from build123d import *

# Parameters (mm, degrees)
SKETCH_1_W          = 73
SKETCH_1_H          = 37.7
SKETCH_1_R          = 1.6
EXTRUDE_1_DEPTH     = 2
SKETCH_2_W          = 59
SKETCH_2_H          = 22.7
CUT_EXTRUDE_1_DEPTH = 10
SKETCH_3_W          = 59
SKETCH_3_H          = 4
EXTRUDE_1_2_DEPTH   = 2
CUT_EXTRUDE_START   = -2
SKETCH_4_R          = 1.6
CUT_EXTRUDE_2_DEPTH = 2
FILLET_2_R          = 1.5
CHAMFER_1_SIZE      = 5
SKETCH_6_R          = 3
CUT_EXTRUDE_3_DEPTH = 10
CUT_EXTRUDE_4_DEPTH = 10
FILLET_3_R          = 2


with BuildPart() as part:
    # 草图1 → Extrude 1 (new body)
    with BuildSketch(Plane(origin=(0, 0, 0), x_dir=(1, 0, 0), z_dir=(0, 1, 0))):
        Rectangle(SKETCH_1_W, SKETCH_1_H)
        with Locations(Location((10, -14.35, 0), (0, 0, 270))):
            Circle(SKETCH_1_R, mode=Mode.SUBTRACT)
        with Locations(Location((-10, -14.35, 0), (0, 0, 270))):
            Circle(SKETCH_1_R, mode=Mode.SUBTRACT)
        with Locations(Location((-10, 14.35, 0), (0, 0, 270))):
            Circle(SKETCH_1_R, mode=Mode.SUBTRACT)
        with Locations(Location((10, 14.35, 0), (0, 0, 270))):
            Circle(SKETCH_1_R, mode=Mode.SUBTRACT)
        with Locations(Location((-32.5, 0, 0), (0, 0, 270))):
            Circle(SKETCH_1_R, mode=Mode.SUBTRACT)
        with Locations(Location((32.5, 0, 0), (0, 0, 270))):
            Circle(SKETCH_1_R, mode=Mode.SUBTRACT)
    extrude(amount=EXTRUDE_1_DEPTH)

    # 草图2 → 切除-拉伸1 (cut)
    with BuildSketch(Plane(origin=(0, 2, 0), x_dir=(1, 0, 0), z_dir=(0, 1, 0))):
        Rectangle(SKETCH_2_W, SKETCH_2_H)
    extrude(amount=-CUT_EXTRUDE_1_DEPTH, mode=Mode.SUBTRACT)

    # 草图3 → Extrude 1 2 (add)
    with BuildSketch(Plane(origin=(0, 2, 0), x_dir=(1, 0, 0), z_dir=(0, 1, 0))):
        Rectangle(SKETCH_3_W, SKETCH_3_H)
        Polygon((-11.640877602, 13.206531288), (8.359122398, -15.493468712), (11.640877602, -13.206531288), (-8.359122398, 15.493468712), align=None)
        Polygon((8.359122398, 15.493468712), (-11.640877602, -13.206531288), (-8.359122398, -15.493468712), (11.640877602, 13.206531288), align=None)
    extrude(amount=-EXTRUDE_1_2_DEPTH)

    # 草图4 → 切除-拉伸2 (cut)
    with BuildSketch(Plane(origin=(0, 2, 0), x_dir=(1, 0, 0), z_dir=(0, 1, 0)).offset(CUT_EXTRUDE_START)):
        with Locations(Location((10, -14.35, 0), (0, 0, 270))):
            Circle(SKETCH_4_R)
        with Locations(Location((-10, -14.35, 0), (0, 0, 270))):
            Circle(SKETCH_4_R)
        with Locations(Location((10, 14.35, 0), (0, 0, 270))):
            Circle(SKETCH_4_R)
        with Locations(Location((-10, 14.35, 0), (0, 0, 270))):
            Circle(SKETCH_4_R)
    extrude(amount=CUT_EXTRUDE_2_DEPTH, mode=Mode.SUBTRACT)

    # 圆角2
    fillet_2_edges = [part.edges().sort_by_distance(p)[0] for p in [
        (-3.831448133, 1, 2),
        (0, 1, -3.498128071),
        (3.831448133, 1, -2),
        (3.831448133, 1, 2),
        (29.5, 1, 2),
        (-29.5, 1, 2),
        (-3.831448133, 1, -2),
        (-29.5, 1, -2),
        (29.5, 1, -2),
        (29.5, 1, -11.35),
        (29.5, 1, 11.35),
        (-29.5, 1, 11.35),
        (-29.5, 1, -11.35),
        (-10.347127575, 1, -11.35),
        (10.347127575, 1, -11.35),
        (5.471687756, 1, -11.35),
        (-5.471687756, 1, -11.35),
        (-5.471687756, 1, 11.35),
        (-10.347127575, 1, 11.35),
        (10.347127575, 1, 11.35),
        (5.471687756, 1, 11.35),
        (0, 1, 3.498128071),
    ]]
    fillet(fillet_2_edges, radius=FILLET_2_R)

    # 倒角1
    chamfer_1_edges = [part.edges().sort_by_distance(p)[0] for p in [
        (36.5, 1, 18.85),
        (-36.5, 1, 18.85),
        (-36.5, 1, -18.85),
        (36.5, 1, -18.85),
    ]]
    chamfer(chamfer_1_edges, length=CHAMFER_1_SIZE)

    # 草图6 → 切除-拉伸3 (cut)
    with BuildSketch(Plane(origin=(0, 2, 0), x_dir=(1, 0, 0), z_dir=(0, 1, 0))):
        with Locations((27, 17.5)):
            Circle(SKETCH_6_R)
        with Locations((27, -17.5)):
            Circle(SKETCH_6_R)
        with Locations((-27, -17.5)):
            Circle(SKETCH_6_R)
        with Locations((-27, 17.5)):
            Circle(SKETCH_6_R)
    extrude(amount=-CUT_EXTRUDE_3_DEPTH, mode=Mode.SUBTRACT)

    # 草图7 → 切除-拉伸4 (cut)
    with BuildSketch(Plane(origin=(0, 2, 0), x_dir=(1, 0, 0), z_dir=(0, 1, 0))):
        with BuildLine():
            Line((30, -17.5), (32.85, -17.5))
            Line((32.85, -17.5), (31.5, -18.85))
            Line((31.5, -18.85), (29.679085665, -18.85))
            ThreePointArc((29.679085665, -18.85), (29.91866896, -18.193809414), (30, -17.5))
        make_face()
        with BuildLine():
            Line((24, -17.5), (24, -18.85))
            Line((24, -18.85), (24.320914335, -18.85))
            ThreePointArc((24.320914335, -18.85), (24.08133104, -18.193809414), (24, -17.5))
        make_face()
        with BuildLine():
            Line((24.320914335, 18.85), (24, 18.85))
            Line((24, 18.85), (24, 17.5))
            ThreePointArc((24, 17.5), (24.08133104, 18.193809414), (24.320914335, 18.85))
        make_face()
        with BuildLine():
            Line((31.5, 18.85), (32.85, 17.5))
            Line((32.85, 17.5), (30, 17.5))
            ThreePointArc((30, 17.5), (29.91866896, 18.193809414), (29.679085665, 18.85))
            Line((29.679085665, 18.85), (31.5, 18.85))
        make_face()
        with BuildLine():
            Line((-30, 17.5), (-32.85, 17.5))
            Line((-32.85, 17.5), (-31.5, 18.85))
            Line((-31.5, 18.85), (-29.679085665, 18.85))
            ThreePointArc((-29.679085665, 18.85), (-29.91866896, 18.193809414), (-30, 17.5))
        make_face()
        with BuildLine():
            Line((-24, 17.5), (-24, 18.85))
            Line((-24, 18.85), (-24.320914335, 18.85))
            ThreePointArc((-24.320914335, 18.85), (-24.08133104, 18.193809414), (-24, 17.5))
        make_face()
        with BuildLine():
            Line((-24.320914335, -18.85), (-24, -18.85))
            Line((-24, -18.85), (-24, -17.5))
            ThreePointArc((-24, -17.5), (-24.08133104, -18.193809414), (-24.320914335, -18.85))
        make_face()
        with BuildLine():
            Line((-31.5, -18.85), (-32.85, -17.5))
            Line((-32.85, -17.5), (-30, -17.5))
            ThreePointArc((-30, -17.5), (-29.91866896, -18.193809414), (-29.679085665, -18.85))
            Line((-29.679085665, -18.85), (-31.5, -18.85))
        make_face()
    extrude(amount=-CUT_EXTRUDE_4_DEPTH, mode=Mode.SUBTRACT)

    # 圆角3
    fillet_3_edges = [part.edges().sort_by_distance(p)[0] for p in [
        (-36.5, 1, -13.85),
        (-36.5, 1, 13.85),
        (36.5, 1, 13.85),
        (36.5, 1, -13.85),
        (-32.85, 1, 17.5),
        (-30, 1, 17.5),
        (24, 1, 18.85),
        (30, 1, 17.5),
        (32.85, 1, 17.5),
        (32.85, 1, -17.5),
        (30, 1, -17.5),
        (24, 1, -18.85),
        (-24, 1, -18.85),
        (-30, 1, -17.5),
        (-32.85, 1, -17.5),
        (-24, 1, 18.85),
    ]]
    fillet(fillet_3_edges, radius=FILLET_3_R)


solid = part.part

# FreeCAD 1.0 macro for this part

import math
import FreeCAD as App
import Part
import Sketcher

V = App.Vector


def edges_at(feature, points):
    """Names of the edges that pass closest to the given points."""
    edges = feature.Shape.Edges
    near = lambda p: min(range(len(edges)), key=lambda i: edges[i].distToShape(Part.Vertex(*p))[0])
    return sorted({f"Edge{near(p) + 1}" for p in points})


def add_polygon(sketch, points):
    """Adds a closed chain of lines whose ends are joined by coincident constraints."""
    first, n = sketch.GeometryCount, len(points)
    for a, b in zip(points, points[1:] + points[:1]):
        sketch.addGeometry(Part.LineSegment(App.Vector(*a, 0), App.Vector(*b, 0)), False)
    for i in range(n):
        sketch.addConstraint(Sketcher.Constraint("Coincident", first + i, 2, first + (i + 1) % n, 1))

doc = App.newDocument("Part")
body = doc.addObject("PartDesign::Body", "Body")

sketch1 = body.newObject("Sketcher::SketchObject", "Sketch")
sketch1.AttachmentSupport = (doc.getObject("XZ_Plane"), [""])
sketch1.MapMode = "FlatFace"
add_polygon(sketch1, [(-36.5, -18.9), (-36.5, 18.9), (36.5, 18.9), (36.5, -18.9)])
sketch1.addGeometry(Part.Circle(V(-10, 14.3, 0), V(0, 0, 1), 1.6), False)
sketch1.addGeometry(Part.Circle(V(10, 14.3, 0), V(0, 0, 1), 1.6), False)
sketch1.addGeometry(Part.Circle(V(-32.5, 0, 0), V(0, 0, 1), 1.6), False)
sketch1.addGeometry(Part.Circle(V(-10, -14.3, 0), V(0, 0, 1), 1.6), False)
sketch1.addGeometry(Part.Circle(V(32.5, 0, 0), V(0, 0, 1), 1.6), False)
sketch1.addGeometry(Part.Circle(V(10, -14.3, 0), V(0, 0, 1), 1.6), False)
sketch1.addConstraint([
    Sketcher.Constraint("Vertical", 0),
    Sketcher.Constraint("Horizontal", 1),
    Sketcher.Constraint("Vertical", 2),
    Sketcher.Constraint("Horizontal", 3),
    Sketcher.Constraint("Equal", 4, 5),
    Sketcher.Constraint("Equal", 5, 6),
    Sketcher.Constraint("Equal", 6, 7),
    Sketcher.Constraint("Equal", 7, 8),
    Sketcher.Constraint("Equal", 8, 9),
    Sketcher.Constraint("Symmetric", 5, 3, 7, 3, -1, 1),
    Sketcher.Constraint("Symmetric", 6, 3, 8, 3, -1, 1),
    Sketcher.Constraint("Symmetric", 4, 3, 9, 3, -1, 1),
    Sketcher.Constraint("Symmetric", 0, 2, 2, 2, -1, 1),
    Sketcher.Constraint("Symmetric", 4, 3, 5, 3, -2),
    Sketcher.Constraint("PointOnObject", 6, 3, -1),
    Sketcher.Constraint("Diameter", 4, 3.2),
    Sketcher.Constraint("DistanceX", 1, 1, 1, 2, 73.0),
    Sketcher.Constraint("DistanceY", 0, 1, 0, 2, 37.7),
    Sketcher.Constraint("DistanceX", 4, 3, -1, 1, 10.0),
    Sketcher.Constraint("DistanceX", 6, 3, 8, 3, 65.0),
    Sketcher.Constraint("DistanceY", 7, 3, 4, 3, 28.7),
])
pad1 = body.newObject("PartDesign::Pad", "Pad")
pad1.Profile = sketch1
pad1.Length = 2
pad1.Reversed = True

sketch2 = body.newObject("Sketcher::SketchObject", "Sketch001")
sketch2.AttachmentSupport = (doc.getObject("XZ_Plane"), [""])
sketch2.MapMode = "FlatFace"
sketch2.AttachmentOffset = App.Placement(V(0, 0, -2), App.Rotation())
add_polygon(sketch2, [(-30, -11), (-30, 11), (30, 11), (30, -11)])
sketch2.addConstraint([
    Sketcher.Constraint("Vertical", 0),
    Sketcher.Constraint("Horizontal", 1),
    Sketcher.Constraint("Vertical", 2),
    Sketcher.Constraint("Horizontal", 3),
    Sketcher.Constraint("Symmetric", 0, 2, 2, 2, -1, 1),
    Sketcher.Constraint("DistanceX", 1, 1, 1, 2, 59.0),
    Sketcher.Constraint("DistanceY", 0, 1, 0, 2, 22.7),
])
pocket1 = body.newObject("PartDesign::Pocket", "Pocket")
pocket1.Profile = sketch2
pocket1.Length = 10
pocket1.Reversed = True

sketch3 = body.newObject("Sketcher::SketchObject", "Sketch002")
sketch3.AttachmentSupport = (doc.getObject("XZ_Plane"), [""])
sketch3.MapMode = "FlatFace"
sketch3.AttachmentOffset = App.Placement(V(0, 0, -2), App.Rotation())
add_polygon(sketch3, [(-29.5, -2), (-29.5, 2), (-3.8, 2), (-11.6, 13.2), (-8.4, 15.5), (0, 3.5), (8.4, 15.5), (11.6, 13.2), (3.8, 2), (29.5, 2), (29.5, -2), (3.8, -2), (11.6, -13.2), (8.4, -15.5), (0, -3.5), (-8.4, -15.5), (-11.6, -13.2), (-3.8, -2)])
sketch3.addConstraint([
    Sketcher.Constraint("Vertical", 0),
    Sketcher.Constraint("Horizontal", 1),
    Sketcher.Constraint("Horizontal", 8),
    Sketcher.Constraint("Vertical", 9),
    Sketcher.Constraint("Horizontal", 10),
    Sketcher.Constraint("Horizontal", 17),
    Sketcher.Constraint("Symmetric", 0, 2, 9, 2, -1, 1),
    Sketcher.Constraint("Symmetric", 2, 2, 11, 2, -1, 1),
    Sketcher.Constraint("Symmetric", 3, 2, 12, 2, -1, 1),
    Sketcher.Constraint("Symmetric", 4, 2, 13, 2, -1, 1),
    Sketcher.Constraint("Symmetric", 5, 2, 14, 2, -1, 1),
    Sketcher.Constraint("Symmetric", 6, 2, 15, 2, -1, 1),
    Sketcher.Constraint("Symmetric", 7, 2, 16, 2, -1, 1),
    Sketcher.Constraint("Symmetric", 3, 2, 5, 2, -2),
    Sketcher.Constraint("Symmetric", 2, 2, 6, 2, -2),
    Sketcher.Constraint("Symmetric", 1, 2, 7, 2, -2),
    Sketcher.Constraint("PointOnObject", 4, 2, -2),
    Sketcher.Constraint("Perpendicular", 2, 3),
    Sketcher.Constraint("Perpendicular", 3, 4),
    Sketcher.Constraint("Parallel", 4, 11),
    Sketcher.Constraint("DistanceY", 0, 1, 0, 2, 4.0),
    Sketcher.Constraint("Distance", 3, 4.0),
    Sketcher.Constraint("DistanceX", 2, 2, 5, 2, 20.0),
    Sketcher.Constraint("DistanceX", 0, 2, -1, 1, 29.5),
    Sketcher.Constraint("DistanceX", 1, 1, 1, 2, 25.668552),
    Sketcher.Constraint("Distance", 4, 14.62064),
])
pad2 = body.newObject("PartDesign::Pad", "Pad001")
pad2.Profile = sketch3
pad2.Length = 2

sketch4 = body.newObject("Sketcher::SketchObject", "Sketch003")
sketch4.AttachmentSupport = (doc.getObject("XZ_Plane"), [""])
sketch4.MapMode = "FlatFace"
sketch4.addGeometry([
    Part.Circle(V(10, 14.3, 0), V(0, 0, 1), 1.6),
    Part.Circle(V(-10, 14.3, 0), V(0, 0, 1), 1.6),
    Part.Circle(V(10, -14.3, 0), V(0, 0, 1), 1.6),
    Part.Circle(V(-10, -14.3, 0), V(0, 0, 1), 1.6),
], False)
sketch4.addConstraint([
    Sketcher.Constraint("Equal", 0, 1),
    Sketcher.Constraint("Equal", 1, 2),
    Sketcher.Constraint("Equal", 2, 3),
    Sketcher.Constraint("Symmetric", 1, 3, 2, 3, -1, 1),
    Sketcher.Constraint("Symmetric", 0, 3, 3, 3, -1, 1),
    Sketcher.Constraint("Symmetric", 0, 3, 1, 3, -2),
    Sketcher.Constraint("Diameter", 0, 3.2),
    Sketcher.Constraint("DistanceX", -1, 1, 0, 3, 10.0),
    Sketcher.Constraint("DistanceY", 2, 3, 0, 3, 28.7),
])
pocket2 = body.newObject("PartDesign::Pocket", "Pocket001")
pocket2.Profile = sketch4
pocket2.Length = 2
doc.recompute()

fillet = body.newObject("PartDesign::Fillet", "Fillet")
fillet.Base = (pocket2, edges_at(pocket2, [
    (-3.831, 1, 2),
    (0, 1, -3.498),
    (3.831, 1, -2),
    (3.831, 1, 2),
    (29.5, 1, 2),
    (-29.5, 1, 2),
    (-3.831, 1, -2),
    (-29.5, 1, -2),
    (29.5, 1, -2),
    (29.5, 1, -11.35),
    (29.5, 1, 11.35),
    (-29.5, 1, 11.35),
    (-29.5, 1, -11.35),
    (-10.347, 1, -11.35),
    (10.347, 1, -11.35),
    (5.472, 1, -11.35),
    (-5.472, 1, -11.35),
    (-5.472, 1, 11.35),
    (-10.347, 1, 11.35),
    (10.347, 1, 11.35),
    (5.472, 1, 11.35),
    (0, 1, 3.498),
]))
fillet.Radius = 1.5
doc.recompute()

chamfer = body.newObject("PartDesign::Chamfer", "Chamfer")
chamfer.Base = (fillet, edges_at(fillet, [
    (36.5, 1, 18.85),
    (-36.5, 1, 18.85),
    (-36.5, 1, -18.85),
    (36.5, 1, -18.85),
]))
chamfer.Size = 5

sketch5 = body.newObject("Sketcher::SketchObject", "Sketch004")
sketch5.AttachmentSupport = (doc.getObject("XZ_Plane"), [""])
sketch5.MapMode = "FlatFace"
sketch5.AttachmentOffset = App.Placement(V(0, 0, -2), App.Rotation())
sketch5.addGeometry([
    Part.Circle(V(27, -17.5, 0), V(0, 0, 1), 3),
    Part.Circle(V(27, 17.5, 0), V(0, 0, 1), 3),
    Part.Circle(V(-27, 17.5, 0), V(0, 0, 1), 3),
    Part.Circle(V(-27, -17.5, 0), V(0, 0, 1), 3),
], False)
sketch5.addConstraint([
    Sketcher.Constraint("Equal", 0, 1),
    Sketcher.Constraint("Equal", 1, 2),
    Sketcher.Constraint("Equal", 2, 3),
    Sketcher.Constraint("Symmetric", 0, 3, 2, 3, -1, 1),
    Sketcher.Constraint("Symmetric", 1, 3, 3, 3, -1, 1),
    Sketcher.Constraint("Symmetric", 1, 3, 2, 3, -2),
    Sketcher.Constraint("Diameter", 0, 6.0),
    Sketcher.Constraint("DistanceX", -1, 1, 0, 3, 27.0),
    Sketcher.Constraint("DistanceY", 0, 3, 1, 3, 35.0),
])
pocket3 = body.newObject("PartDesign::Pocket", "Pocket002")
pocket3.Profile = sketch5
pocket3.Length = 10
pocket3.Reversed = True

sketch6 = body.newObject("Sketcher::SketchObject", "Sketch005")
sketch6.AttachmentSupport = (doc.getObject("XZ_Plane"), [""])
sketch6.MapMode = "FlatFace"
sketch6.AttachmentOffset = App.Placement(V(0, 0, -2), App.Rotation())
sketch6.addGeometry([
    Part.LineSegment(V(32.85, 17.5, 0), V(30, 17.5, 0)),
    Part.ArcOfCircle(Part.Circle(V(27, 17.5, 0), V(0, 0, 1), 3), math.radians(0), math.radians(27)),
    Part.LineSegment(V(29.68, 18.85, 0), V(31.5, 18.85, 0)),
    Part.LineSegment(V(31.5, 18.85, 0), V(32.85, 17.5, 0)),
    Part.LineSegment(V(24, 17.5, 0), V(24, 18.85, 0)),
    Part.LineSegment(V(24, 18.85, 0), V(24.32, 18.85, 0)),
    Part.ArcOfCircle(Part.Circle(V(27, 17.5, 0), V(0, 0, 1), 3), math.radians(153), math.radians(180)),
    Part.LineSegment(V(24.32, -18.85, 0), V(24, -18.85, 0)),
    Part.LineSegment(V(24, -18.85, 0), V(24, -17.5, 0)),
    Part.ArcOfCircle(Part.Circle(V(27, -17.5, 0), V(0, 0, 1), 3), math.radians(180), math.radians(207)),
    Part.LineSegment(V(32.85, -17.5, 0), V(31.5, -18.85, 0)),
    Part.LineSegment(V(31.5, -18.85, 0), V(29.68, -18.85, 0)),
    Part.ArcOfCircle(Part.Circle(V(27, -17.5, 0), V(0, 0, 1), 3), math.radians(-27), math.radians(0)),
    Part.LineSegment(V(30, -17.5, 0), V(32.85, -17.5, 0)),
    Part.LineSegment(V(-32.85, -17.5, 0), V(-30, -17.5, 0)),
    Part.ArcOfCircle(Part.Circle(V(-27, -17.5, 0), V(0, 0, 1), 3), math.radians(180), math.radians(207)),
    Part.LineSegment(V(-29.68, -18.85, 0), V(-31.5, -18.85, 0)),
    Part.LineSegment(V(-31.5, -18.85, 0), V(-32.85, -17.5, 0)),
    Part.LineSegment(V(-24, -17.5, 0), V(-24, -18.85, 0)),
    Part.LineSegment(V(-24, -18.85, 0), V(-24.32, -18.85, 0)),
    Part.ArcOfCircle(Part.Circle(V(-27, -17.5, 0), V(0, 0, 1), 3), math.radians(-27), math.radians(0)),
    Part.LineSegment(V(-24.32, 18.85, 0), V(-24, 18.85, 0)),
    Part.LineSegment(V(-24, 18.85, 0), V(-24, 17.5, 0)),
    Part.ArcOfCircle(Part.Circle(V(-27, 17.5, 0), V(0, 0, 1), 3), math.radians(0), math.radians(27)),
    Part.LineSegment(V(-32.85, 17.5, 0), V(-31.5, 18.85, 0)),
    Part.LineSegment(V(-31.5, 18.85, 0), V(-29.68, 18.85, 0)),
    Part.ArcOfCircle(Part.Circle(V(-27, 17.5, 0), V(0, 0, 1), 3), math.radians(153), math.radians(180)),
    Part.LineSegment(V(-30, 17.5, 0), V(-32.85, 17.5, 0)),
], False)
sketch6.addConstraint([
    Sketcher.Constraint("Coincident", 0, 2, 1, 1),
    Sketcher.Constraint("Coincident", 1, 2, 2, 1),
    Sketcher.Constraint("Coincident", 2, 2, 3, 1),
    Sketcher.Constraint("Coincident", 3, 2, 0, 1),
    Sketcher.Constraint("Coincident", 4, 2, 5, 1),
    Sketcher.Constraint("Coincident", 5, 2, 6, 1),
    Sketcher.Constraint("Tangent", 6, 2, 4, 1),
    Sketcher.Constraint("Coincident", 7, 2, 8, 1),
    Sketcher.Constraint("Tangent", 8, 2, 9, 1),
    Sketcher.Constraint("Coincident", 9, 2, 7, 1),
    Sketcher.Constraint("Coincident", 10, 2, 11, 1),
    Sketcher.Constraint("Coincident", 11, 2, 12, 1),
    Sketcher.Constraint("Coincident", 12, 2, 13, 1),
    Sketcher.Constraint("Coincident", 13, 2, 10, 1),
    Sketcher.Constraint("Coincident", 14, 2, 15, 1),
    Sketcher.Constraint("Coincident", 15, 2, 16, 1),
    Sketcher.Constraint("Coincident", 16, 2, 17, 1),
    Sketcher.Constraint("Coincident", 17, 2, 14, 1),
    Sketcher.Constraint("Coincident", 18, 2, 19, 1),
    Sketcher.Constraint("Coincident", 19, 2, 20, 1),
    Sketcher.Constraint("Tangent", 20, 2, 18, 1),
    Sketcher.Constraint("Coincident", 21, 2, 22, 1),
    Sketcher.Constraint("Tangent", 22, 2, 23, 1),
    Sketcher.Constraint("Coincident", 23, 2, 21, 1),
    Sketcher.Constraint("Coincident", 24, 2, 25, 1),
    Sketcher.Constraint("Coincident", 25, 2, 26, 1),
    Sketcher.Constraint("Coincident", 26, 2, 27, 1),
    Sketcher.Constraint("Coincident", 27, 2, 24, 1),
    Sketcher.Constraint("Horizontal", 0),
    Sketcher.Constraint("Horizontal", 2),
    Sketcher.Constraint("Vertical", 4),
    Sketcher.Constraint("Horizontal", 5),
    Sketcher.Constraint("Horizontal", 7),
    Sketcher.Constraint("Vertical", 8),
    Sketcher.Constraint("Horizontal", 11),
    Sketcher.Constraint("Horizontal", 13),
    Sketcher.Constraint("Horizontal", 14),
    Sketcher.Constraint("Horizontal", 16),
    Sketcher.Constraint("Vertical", 18),
    Sketcher.Constraint("Horizontal", 19),
    Sketcher.Constraint("Horizontal", 21),
    Sketcher.Constraint("Vertical", 22),
    Sketcher.Constraint("Horizontal", 25),
    Sketcher.Constraint("Horizontal", 27),
    Sketcher.Constraint("Coincident", 6, 3, 1, 3),
    Sketcher.Constraint("Coincident", 12, 3, 9, 3),
    Sketcher.Constraint("Coincident", 20, 3, 15, 3),
    Sketcher.Constraint("Coincident", 26, 3, 23, 3),
    Sketcher.Constraint("Equal", 1, 6),
    Sketcher.Constraint("Equal", 6, 9),
    Sketcher.Constraint("Equal", 9, 12),
    Sketcher.Constraint("Equal", 12, 15),
    Sketcher.Constraint("Equal", 15, 20),
    Sketcher.Constraint("Equal", 20, 23),
    Sketcher.Constraint("Equal", 23, 26),
    Sketcher.Constraint("Symmetric", 1, 3, 15, 3, -1, 1),
    Sketcher.Constraint("Symmetric", 9, 3, 23, 3, -1, 1),
    Sketcher.Constraint("Symmetric", 2, 2, 16, 2, -1, 1),
    Sketcher.Constraint("Symmetric", 3, 2, 17, 2, -1, 1),
    Sketcher.Constraint("Symmetric", 10, 2, 24, 2, -1, 1),
    Sketcher.Constraint("Symmetric", 13, 2, 27, 2, -1, 1),
    Sketcher.Constraint("Symmetric", 9, 3, 15, 3, -2),
    Sketcher.Constraint("Symmetric", 10, 2, 16, 2, -2),
    Sketcher.Constraint("Symmetric", 13, 2, 17, 2, -2),
    Sketcher.Constraint("Perpendicular", 3, 10),
    Sketcher.Constraint("Horizontal", 26, 3, 0, 2),
    Sketcher.Constraint("Horizontal", 2, 2, 4, 2),
    Sketcher.Constraint("Horizontal", 9, 2, 10, 2),
    Sketcher.Constraint("Horizontal", 16, 2, 18, 2),
    Sketcher.Constraint("Horizontal", 5, 2, 21, 2),
    Sketcher.Constraint("Radius", 1, 3.0),
    Sketcher.Constraint("DistanceX", -1, 1, 1, 3, 27.0),
    Sketcher.Constraint("DistanceY", 9, 3, 1, 3, 35.0),
    Sketcher.Constraint("DistanceX", 0, 2, 0, 1, 2.85),
    Sketcher.Constraint("DistanceY", 4, 1, 4, 2, 1.35),
])
pocket4 = body.newObject("PartDesign::Pocket", "Pocket003")
pocket4.Profile = sketch6
pocket4.Length = 10
pocket4.Reversed = True
doc.recompute()

fillet2 = body.newObject("PartDesign::Fillet", "Fillet001")
fillet2.Base = (pocket4, edges_at(pocket4, [
    (-36.5, 1, -13.85),
    (-36.5, 1, 13.85),
    (36.5, 1, 13.85),
    (36.5, 1, -13.85),
    (-32.85, 1, 17.5),
    (-30, 1, 17.5),
    (24, 1, 18.85),
    (30, 1, 17.5),
    (32.85, 1, 17.5),
    (32.85, 1, -17.5),
    (30, 1, -17.5),
    (24, 1, -18.85),
    (-24, 1, -18.85),
    (-30, 1, -17.5),
    (-32.85, 1, -17.5),
    (-24, 1, 18.85),
]))
fillet2.Radius = 2

doc.recompute()
